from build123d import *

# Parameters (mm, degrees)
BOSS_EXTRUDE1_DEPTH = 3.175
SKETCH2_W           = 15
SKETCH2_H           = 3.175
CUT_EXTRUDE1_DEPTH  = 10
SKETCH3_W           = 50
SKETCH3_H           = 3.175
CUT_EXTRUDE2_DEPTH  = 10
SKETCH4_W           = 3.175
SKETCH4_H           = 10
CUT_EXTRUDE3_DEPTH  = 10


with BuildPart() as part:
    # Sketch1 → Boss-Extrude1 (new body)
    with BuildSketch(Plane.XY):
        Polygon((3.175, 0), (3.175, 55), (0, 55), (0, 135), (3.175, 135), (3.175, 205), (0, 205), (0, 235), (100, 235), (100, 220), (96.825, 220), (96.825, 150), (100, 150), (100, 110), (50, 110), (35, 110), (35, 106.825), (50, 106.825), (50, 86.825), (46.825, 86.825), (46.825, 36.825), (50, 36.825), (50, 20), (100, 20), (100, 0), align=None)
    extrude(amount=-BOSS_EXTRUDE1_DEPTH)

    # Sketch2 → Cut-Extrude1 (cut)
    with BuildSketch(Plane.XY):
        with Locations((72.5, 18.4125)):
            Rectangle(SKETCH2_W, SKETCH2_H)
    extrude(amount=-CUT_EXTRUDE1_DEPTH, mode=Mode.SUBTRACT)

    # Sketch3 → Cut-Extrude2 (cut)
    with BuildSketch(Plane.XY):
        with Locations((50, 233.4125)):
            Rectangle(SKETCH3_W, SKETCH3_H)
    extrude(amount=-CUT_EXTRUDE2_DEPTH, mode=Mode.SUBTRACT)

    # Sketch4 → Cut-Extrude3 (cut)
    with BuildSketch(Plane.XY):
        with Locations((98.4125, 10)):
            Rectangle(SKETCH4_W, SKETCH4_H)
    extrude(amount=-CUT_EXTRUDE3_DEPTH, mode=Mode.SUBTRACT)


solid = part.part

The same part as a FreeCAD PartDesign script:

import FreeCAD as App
import Part
import Sketcher


def add_polygon(sketch, points):
    """Adds a closed chain of lines whose ends are joined by coincident constraints."""
    first, n = sketch.GeometryCount, len(points)
    for a, b in zip(points, points[1:] + points[:1]):
        sketch.addGeometry(Part.LineSegment(App.Vector(*a, 0), App.Vector(*b, 0)), False)
    for i in range(n):
        sketch.addConstraint(Sketcher.Constraint("Coincident", first + i, 2, first + (i + 1) % n, 1))

doc = App.newDocument("Part")
body = doc.addObject("PartDesign::Body", "Body")

# Sketch on XY plane
sketch1 = doc.addObject("Sketcher::SketchObject", "Sketch")
body.addObject(sketch1)
sketch1.AttachmentSupport = (doc.XY_Plane, [""])
sketch1.MapMode = "FlatFace"
add_polygon(sketch1, [(3.175, 55), (3.175, 0), (100, 0), (100, 20), (50, 20), (50, 36.825), (46.825, 36.825), (46.825, 86.825), (50, 86.825), (50, 106.825), (35, 106.825), (35, 110), (100, 110), (100, 150), (96.825, 150), (96.825, 220), (100, 220), (100, 235), (0, 235), (0, 205), (3.175, 205), (3.175, 135), (0, 135), (0, 55)])  # lines 0-23
sketch1.addConstraint([
    Sketcher.Constraint("Vertical", 0),
    Sketcher.Constraint("Horizontal", 1),
    Sketcher.Constraint("Vertical", 2),
    Sketcher.Constraint("Horizontal", 3),
    Sketcher.Constraint("Vertical", 4),
    Sketcher.Constraint("Horizontal", 5),
    Sketcher.Constraint("Vertical", 6),
    Sketcher.Constraint("Horizontal", 7),
    Sketcher.Constraint("Vertical", 8),
    Sketcher.Constraint("Horizontal", 9),
    Sketcher.Constraint("Vertical", 10),
    Sketcher.Constraint("Horizontal", 11),
    Sketcher.Constraint("Vertical", 12),
    Sketcher.Constraint("Horizontal", 13),
    Sketcher.Constraint("Vertical", 14),
    Sketcher.Constraint("Horizontal", 15),
    Sketcher.Constraint("Vertical", 16),
    Sketcher.Constraint("Horizontal", 17),
    Sketcher.Constraint("Vertical", 18),
    Sketcher.Constraint("Horizontal", 19),
    Sketcher.Constraint("Vertical", 20),
    Sketcher.Constraint("Horizontal", 21),
    Sketcher.Constraint("Vertical", 22),
    Sketcher.Constraint("Horizontal", 23),
    Sketcher.Constraint("PointOnObject", 0, 2, -1),
    Sketcher.Constraint("PointOnObject", 17, 2, -2),
    Sketcher.Constraint("PointOnObject", 21, 2, -2),
    Sketcher.Constraint("Vertical", 4, 2, 7, 2),
    Sketcher.Constraint("Vertical", 2, 2, 11, 2),
    Sketcher.Constraint("Vertical", 12, 2, 15, 2),
    Sketcher.Constraint("Vertical", 0, 2, 19, 2),
    Sketcher.Constraint("Equal", 7, 13),
    Sketcher.Constraint("Equal", 15, 19),
    Sketcher.Constraint("Equal", 3, 6),
    Sketcher.Constraint("Equal", 2, 8),
    Sketcher.Constraint("Equal", 23, 10),
    Sketcher.Constraint("Equal", 9, 16),
    Sketcher.Constraint("Equal", 14, 20),
    Sketcher.Constraint("DistanceX", 3, 2, 3, 1, 50.0),
    Sketcher.Constraint("DistanceX", 9, 2, 9, 1, 15.0),
    Sketcher.Constraint("DistanceX", 17, 2, 17, 1, 100.0),
    Sketcher.Constraint("DistanceY", 0, 2, 0, 1, 55.0),
    Sketcher.Constraint("DistanceY", 2, 1, 2, 2, 20.0),
    Sketcher.Constraint("DistanceY", 12, 1, 12, 2, 40.0),
    Sketcher.Constraint("DistanceY", 14, 1, 14, 2, 70.0),
    Sketcher.Constraint("DistanceY", 18, 2, 18, 1, 30.0),
    Sketcher.Constraint("DistanceY", 22, 2, 22, 1, 80.0),
    Sketcher.Constraint("DistanceX", 1, 1, 1, 2, 96.825),
])
pad1 = doc.addObject("PartDesign::Pad", "Pad")
body.addObject(pad1)
pad1.Profile = sketch1
pad1.Length = 3.175
pad1.Reversed = True

# Sketch on XY plane
sketch2 = doc.addObject("Sketcher::SketchObject", "Sketch001")
body.addObject(sketch2)
sketch2.AttachmentSupport = (doc.XY_Plane, [""])
sketch2.MapMode = "FlatFace"
add_polygon(sketch2, [(65, 20), (65, 16.825), (80, 16.825), (80, 20)])  # lines 0-3
sketch2.addConstraint([
    Sketcher.Constraint("Vertical", 0),
    Sketcher.Constraint("Horizontal", 1),
    Sketcher.Constraint("Vertical", 2),
    Sketcher.Constraint("Horizontal", 3),
    Sketcher.Constraint("DistanceX", 1, 1, 1, 2, 15.0),
    Sketcher.Constraint("DistanceX", -1, 1, 0, 2, 65.0),
    Sketcher.Constraint("DistanceY", -1, 1, 2, 2, 20.0),
    Sketcher.Constraint("DistanceY", 0, 2, 0, 1, 3.175),
])
pocket1 = doc.addObject("PartDesign::Pocket", "Pocket")
body.addObject(pocket1)
pocket1.Profile = sketch2
pocket1.Length = 10

# Sketch on XY plane
sketch3 = doc.addObject("Sketcher::SketchObject", "Sketch002")
body.addObject(sketch3)
sketch3.AttachmentSupport = (doc.XY_Plane, [""])
sketch3.MapMode = "FlatFace"
add_polygon(sketch3, [(25, 235), (25, 231.825), (75, 231.825), (75, 235)])  # lines 0-3
sketch3.addConstraint([
    Sketcher.Constraint("Vertical", 0),
    Sketcher.Constraint("Horizontal", 1),
    Sketcher.Constraint("Vertical", 2),
    Sketcher.Constraint("Horizontal", 3),
    Sketcher.Constraint("DistanceX", 1, 1, 1, 2, 50.0),
    Sketcher.Constraint("DistanceX", -1, 1, 0, 2, 25.0),
    Sketcher.Constraint("DistanceY", -1, 1, 2, 2, 235.0),
    Sketcher.Constraint("DistanceY", 0, 2, 0, 1, 3.175),
])
pocket2 = doc.addObject("PartDesign::Pocket", "Pocket001")
body.addObject(pocket2)
pocket2.Profile = sketch3
pocket2.Length = 10

# Sketch on XY plane
sketch4 = doc.addObject("Sketcher::SketchObject", "Sketch003")
body.addObject(sketch4)
sketch4.AttachmentSupport = (doc.XY_Plane, [""])
sketch4.MapMode = "FlatFace"
add_polygon(sketch4, [(96.825, 15), (96.825, 5), (100, 5), (100, 15)])  # lines 0-3
sketch4.addConstraint([
    Sketcher.Constraint("Vertical", 0),
    Sketcher.Constraint("Horizontal", 1),
    Sketcher.Constraint("Vertical", 2),
    Sketcher.Constraint("Horizontal", 3),
    Sketcher.Constraint("DistanceY", 0, 2, 0, 1, 10.0),
    Sketcher.Constraint("DistanceY", -1, 1, 0, 2, 5.0),
    Sketcher.Constraint("DistanceX", -1, 1, 1, 2, 100.0),
    Sketcher.Constraint("DistanceX", 1, 1, 1, 2, 3.175),
])
pocket3 = doc.addObject("PartDesign::Pocket", "Pocket002")
body.addObject(pocket3)
pocket3.Profile = sketch4
pocket3.Length = 10

doc.recompute()
